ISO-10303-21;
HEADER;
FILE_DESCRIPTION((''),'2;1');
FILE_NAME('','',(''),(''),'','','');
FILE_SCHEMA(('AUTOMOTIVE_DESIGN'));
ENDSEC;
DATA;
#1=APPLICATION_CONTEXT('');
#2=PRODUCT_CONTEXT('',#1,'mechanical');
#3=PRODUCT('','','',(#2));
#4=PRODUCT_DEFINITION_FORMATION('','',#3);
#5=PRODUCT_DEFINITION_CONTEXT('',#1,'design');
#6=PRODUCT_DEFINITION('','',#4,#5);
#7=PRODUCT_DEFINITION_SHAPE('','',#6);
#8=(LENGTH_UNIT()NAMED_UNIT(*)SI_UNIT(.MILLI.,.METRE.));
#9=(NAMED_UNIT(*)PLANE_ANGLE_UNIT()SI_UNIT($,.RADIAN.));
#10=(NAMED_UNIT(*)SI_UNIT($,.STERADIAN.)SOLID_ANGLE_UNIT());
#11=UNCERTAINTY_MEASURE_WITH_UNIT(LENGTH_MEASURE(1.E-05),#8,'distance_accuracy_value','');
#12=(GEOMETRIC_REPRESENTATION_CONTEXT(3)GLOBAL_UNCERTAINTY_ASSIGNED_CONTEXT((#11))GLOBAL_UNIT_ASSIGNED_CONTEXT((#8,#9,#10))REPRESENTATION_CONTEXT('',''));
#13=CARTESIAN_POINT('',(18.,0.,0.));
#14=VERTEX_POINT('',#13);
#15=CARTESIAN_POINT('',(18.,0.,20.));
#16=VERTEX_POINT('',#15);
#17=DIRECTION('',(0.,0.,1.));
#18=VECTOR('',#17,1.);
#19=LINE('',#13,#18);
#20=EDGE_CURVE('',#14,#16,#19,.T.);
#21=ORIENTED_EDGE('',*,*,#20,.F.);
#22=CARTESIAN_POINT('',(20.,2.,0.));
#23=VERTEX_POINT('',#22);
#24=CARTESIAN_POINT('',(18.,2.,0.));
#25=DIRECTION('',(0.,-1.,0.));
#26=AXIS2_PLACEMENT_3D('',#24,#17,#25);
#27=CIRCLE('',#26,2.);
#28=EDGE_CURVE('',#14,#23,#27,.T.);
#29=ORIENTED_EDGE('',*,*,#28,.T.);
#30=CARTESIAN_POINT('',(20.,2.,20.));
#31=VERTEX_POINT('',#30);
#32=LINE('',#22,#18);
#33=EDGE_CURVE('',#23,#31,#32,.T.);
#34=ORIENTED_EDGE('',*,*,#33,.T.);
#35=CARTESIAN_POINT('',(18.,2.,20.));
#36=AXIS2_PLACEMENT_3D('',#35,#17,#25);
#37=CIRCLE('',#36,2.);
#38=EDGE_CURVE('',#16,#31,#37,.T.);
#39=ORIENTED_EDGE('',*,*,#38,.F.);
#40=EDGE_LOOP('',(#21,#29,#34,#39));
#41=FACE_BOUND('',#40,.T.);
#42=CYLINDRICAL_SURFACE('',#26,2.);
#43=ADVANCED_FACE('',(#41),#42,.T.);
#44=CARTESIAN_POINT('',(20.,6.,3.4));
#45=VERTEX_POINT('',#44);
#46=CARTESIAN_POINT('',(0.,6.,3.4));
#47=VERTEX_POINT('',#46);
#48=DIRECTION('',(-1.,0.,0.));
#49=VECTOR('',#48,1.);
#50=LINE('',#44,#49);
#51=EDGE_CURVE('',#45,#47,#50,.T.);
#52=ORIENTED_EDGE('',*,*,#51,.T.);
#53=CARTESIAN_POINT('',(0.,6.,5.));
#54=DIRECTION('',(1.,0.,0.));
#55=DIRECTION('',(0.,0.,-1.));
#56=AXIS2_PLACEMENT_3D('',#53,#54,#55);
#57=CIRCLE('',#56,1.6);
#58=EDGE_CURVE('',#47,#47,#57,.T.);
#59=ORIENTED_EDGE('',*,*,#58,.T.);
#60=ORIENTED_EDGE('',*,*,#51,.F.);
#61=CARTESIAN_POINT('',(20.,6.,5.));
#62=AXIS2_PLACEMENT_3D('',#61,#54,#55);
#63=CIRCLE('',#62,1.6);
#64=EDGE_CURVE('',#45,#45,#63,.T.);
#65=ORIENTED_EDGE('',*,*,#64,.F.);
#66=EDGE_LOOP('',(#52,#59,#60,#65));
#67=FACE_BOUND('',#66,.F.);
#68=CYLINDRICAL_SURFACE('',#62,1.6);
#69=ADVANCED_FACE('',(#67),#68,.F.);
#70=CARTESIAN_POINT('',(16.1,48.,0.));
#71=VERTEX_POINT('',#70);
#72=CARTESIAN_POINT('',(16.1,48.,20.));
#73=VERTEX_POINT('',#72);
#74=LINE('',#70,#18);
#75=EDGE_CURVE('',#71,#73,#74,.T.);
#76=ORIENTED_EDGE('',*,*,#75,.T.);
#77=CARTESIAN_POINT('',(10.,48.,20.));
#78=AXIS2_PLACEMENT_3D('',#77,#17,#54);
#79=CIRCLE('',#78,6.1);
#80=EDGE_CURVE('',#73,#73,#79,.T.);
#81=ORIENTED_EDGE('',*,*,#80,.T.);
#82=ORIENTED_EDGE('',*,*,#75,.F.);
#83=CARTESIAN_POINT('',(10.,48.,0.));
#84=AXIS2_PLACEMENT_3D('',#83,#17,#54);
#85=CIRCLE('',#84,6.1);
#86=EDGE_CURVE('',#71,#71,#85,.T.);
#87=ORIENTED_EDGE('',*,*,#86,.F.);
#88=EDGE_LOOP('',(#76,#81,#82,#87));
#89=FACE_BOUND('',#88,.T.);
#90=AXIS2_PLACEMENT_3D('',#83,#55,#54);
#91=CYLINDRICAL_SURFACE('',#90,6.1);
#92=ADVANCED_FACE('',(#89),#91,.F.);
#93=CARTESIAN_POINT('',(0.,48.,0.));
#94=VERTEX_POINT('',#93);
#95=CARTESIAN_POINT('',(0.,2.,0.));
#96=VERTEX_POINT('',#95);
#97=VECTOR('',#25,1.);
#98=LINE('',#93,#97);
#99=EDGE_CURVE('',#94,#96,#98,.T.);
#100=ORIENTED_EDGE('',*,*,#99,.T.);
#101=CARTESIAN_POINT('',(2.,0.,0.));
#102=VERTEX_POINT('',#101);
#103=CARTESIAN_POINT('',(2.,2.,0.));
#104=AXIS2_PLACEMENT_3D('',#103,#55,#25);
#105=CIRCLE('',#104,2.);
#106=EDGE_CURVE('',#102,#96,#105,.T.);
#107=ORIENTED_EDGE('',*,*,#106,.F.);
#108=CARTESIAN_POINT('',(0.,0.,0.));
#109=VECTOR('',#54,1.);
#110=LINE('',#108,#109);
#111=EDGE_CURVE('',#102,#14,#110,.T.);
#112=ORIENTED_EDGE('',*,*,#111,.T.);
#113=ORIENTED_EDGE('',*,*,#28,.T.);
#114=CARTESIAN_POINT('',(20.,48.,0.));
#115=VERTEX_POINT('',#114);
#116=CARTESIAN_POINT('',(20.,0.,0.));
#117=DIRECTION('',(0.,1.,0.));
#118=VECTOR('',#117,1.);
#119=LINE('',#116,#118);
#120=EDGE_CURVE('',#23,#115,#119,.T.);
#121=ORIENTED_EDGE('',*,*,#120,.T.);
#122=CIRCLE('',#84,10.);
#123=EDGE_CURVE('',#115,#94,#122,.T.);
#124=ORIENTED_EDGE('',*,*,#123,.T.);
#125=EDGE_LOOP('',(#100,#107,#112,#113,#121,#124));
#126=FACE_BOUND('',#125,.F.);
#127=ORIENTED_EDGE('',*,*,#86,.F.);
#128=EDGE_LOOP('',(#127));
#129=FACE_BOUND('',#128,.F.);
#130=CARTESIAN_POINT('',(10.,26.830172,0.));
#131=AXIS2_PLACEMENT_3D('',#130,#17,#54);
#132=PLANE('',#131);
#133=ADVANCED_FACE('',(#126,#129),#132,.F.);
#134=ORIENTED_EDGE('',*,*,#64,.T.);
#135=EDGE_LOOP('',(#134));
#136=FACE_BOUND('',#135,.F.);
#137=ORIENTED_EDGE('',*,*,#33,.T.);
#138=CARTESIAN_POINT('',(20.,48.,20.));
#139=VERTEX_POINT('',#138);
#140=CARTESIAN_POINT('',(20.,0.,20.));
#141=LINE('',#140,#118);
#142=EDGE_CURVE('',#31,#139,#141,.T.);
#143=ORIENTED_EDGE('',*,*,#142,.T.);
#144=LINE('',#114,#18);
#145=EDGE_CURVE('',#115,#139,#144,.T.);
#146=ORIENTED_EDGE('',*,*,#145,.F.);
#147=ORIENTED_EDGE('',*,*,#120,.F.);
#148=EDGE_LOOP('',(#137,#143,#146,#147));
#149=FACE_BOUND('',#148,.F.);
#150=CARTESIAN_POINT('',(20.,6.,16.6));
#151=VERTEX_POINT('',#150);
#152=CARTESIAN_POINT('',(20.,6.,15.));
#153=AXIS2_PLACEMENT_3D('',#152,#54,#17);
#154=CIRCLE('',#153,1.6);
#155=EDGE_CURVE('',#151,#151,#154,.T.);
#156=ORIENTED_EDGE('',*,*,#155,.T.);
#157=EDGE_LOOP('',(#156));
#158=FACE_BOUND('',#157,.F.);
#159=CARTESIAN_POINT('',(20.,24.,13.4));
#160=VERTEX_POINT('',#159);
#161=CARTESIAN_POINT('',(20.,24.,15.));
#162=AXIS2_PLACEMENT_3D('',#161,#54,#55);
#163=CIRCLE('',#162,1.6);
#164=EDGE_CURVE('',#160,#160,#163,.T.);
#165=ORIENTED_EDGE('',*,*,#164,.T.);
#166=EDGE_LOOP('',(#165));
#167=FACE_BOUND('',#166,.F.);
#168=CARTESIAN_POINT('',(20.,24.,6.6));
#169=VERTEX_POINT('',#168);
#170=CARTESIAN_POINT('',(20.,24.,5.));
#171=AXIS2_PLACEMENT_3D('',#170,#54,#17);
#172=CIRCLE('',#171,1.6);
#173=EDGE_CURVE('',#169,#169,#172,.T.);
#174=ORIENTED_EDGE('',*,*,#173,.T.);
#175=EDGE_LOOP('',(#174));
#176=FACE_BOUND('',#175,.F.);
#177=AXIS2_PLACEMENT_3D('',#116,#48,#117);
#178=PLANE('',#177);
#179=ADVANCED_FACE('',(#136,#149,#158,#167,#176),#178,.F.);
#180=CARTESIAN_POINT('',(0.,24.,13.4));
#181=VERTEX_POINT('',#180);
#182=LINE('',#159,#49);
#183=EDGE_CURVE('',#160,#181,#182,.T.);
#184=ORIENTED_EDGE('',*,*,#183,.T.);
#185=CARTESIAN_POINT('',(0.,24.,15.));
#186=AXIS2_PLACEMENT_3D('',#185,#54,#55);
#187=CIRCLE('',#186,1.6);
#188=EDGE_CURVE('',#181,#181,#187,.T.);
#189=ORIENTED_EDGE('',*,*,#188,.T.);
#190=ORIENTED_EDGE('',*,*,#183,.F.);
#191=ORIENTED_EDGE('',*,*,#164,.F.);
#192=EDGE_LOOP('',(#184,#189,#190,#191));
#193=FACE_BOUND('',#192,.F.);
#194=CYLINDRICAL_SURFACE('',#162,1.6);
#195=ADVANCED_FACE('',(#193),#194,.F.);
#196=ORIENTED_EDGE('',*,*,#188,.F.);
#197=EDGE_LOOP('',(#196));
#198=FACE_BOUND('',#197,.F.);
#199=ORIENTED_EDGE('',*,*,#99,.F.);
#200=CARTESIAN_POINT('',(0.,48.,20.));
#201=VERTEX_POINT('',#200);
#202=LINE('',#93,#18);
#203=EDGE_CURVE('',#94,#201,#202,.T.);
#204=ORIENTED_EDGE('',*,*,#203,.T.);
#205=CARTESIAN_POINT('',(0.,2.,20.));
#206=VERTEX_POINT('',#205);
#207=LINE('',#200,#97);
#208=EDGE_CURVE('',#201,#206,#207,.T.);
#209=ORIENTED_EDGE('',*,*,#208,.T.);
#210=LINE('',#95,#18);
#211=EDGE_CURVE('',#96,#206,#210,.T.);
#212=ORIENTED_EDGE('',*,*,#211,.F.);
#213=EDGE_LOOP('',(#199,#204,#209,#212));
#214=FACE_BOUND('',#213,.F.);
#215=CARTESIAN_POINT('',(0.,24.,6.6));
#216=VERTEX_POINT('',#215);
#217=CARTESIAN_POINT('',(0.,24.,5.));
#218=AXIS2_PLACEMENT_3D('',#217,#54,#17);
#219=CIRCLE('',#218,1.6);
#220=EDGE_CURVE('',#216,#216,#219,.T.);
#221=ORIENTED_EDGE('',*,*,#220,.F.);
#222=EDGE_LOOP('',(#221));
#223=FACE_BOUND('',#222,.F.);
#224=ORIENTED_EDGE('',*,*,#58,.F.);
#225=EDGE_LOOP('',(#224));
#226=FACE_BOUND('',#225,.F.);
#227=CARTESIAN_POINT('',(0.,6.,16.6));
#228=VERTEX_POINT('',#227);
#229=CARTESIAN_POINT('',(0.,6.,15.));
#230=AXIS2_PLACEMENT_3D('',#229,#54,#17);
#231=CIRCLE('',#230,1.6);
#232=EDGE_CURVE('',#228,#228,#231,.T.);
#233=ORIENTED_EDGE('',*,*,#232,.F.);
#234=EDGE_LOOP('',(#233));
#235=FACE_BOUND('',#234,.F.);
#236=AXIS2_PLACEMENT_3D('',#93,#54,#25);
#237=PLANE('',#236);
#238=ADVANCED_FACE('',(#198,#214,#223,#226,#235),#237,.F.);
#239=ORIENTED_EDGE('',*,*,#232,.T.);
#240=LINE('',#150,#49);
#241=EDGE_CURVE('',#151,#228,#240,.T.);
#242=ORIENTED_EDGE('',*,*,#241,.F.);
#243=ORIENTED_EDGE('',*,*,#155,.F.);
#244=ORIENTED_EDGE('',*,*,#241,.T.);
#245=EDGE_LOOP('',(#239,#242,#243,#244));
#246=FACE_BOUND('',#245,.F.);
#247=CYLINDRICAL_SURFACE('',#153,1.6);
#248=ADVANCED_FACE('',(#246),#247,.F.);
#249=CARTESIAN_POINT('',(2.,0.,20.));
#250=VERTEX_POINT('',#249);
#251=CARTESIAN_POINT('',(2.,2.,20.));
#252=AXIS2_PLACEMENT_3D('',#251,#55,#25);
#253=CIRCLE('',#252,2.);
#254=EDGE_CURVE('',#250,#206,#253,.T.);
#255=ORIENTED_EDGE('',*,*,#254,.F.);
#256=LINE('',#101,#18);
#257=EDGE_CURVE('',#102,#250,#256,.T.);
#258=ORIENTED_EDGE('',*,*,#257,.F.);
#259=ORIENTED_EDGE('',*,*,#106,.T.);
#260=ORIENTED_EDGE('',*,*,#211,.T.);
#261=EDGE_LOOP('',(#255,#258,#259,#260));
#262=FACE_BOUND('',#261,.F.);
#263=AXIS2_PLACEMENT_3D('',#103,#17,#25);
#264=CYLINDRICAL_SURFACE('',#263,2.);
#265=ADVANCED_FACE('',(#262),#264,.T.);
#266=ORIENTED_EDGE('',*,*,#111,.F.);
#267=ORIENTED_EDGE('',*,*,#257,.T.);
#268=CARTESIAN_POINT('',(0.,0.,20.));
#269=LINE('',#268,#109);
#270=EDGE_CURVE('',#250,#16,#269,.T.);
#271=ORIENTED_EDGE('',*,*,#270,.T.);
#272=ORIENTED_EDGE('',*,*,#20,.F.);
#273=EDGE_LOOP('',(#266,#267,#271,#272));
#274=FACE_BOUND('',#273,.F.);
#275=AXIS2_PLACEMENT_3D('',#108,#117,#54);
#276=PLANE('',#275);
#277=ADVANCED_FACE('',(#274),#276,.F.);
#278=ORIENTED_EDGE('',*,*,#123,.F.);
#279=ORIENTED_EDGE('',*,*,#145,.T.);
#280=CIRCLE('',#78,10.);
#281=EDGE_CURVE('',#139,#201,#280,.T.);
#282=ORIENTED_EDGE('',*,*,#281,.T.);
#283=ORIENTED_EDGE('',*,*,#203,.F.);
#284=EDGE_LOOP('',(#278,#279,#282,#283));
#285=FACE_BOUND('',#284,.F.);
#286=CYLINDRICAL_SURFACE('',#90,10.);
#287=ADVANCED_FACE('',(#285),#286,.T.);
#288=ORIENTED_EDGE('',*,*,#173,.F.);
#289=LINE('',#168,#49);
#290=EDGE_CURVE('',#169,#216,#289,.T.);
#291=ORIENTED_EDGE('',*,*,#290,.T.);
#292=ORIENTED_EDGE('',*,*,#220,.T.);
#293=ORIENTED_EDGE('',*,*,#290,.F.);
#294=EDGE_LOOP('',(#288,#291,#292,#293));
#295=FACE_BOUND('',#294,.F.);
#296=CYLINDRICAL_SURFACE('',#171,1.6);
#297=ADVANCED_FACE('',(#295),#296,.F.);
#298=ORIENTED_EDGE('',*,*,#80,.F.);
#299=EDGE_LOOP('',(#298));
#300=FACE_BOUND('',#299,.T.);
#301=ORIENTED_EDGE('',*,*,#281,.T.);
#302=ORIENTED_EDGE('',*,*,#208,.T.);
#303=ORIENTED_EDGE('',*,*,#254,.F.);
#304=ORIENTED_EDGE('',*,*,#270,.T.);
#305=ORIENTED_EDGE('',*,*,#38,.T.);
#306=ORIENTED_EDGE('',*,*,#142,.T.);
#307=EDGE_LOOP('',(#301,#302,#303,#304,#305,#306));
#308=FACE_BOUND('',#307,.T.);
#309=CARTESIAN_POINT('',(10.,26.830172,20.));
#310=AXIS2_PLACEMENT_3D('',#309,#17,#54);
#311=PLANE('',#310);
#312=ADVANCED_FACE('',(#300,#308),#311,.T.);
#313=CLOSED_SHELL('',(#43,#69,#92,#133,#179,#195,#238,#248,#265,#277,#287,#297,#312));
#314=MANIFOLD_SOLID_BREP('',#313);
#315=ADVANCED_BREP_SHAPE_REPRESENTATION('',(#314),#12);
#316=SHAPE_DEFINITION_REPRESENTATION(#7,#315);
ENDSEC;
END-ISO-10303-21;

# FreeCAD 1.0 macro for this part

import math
import FreeCAD as App
import Part
import Sketcher
from FreeCAD import Vector


def edges_at(feature, points):
    """Names of the edges that pass closest to the given points."""
    edges = feature.Shape.Edges
    near = lambda p: min(range(len(edges)), key=lambda i: edges[i].distToShape(Part.Vertex(*p))[0])
    return sorted({f"Edge{near(p) + 1}" for p in points})

doc = App.newDocument("Part")
body = doc.addObject("PartDesign::Body", "Body")

# Sketch on XY plane
sketch1 = body.newObject("Sketcher::SketchObject", "Sketch")
sketch1.AttachmentSupport = (doc.getObject("XY_Plane"), [""])
sketch1.MapMode = "FlatFace"
sketch1.addGeometry(Part.LineSegment(Vector(0, 0, 0), Vector(20, 0, 0)), False)
sketch1.addGeometry(Part.LineSegment(Vector(20, 0, 0), Vector(20, 48, 0)), False)
sketch1.addGeometry(Part.ArcOfCircle(Part.Circle(Vector(10, 48, 0), Vector(0, 0, 1), 10), math.radians(0), math.radians(180)), False)
sketch1.addGeometry(Part.LineSegment(Vector(0, 48, 0), Vector(0, 0, 0)), False)
sketch1.addGeometry(Part.Circle(Vector(10, 48, 0), Vector(0, 0, 1), 6.1), False)
sketch1.addConstraint(Sketcher.Constraint("Coincident", 0, 2, 1, 1))
sketch1.addConstraint(Sketcher.Constraint("Tangent", 1, 2, 2, 1))
sketch1.addConstraint(Sketcher.Constraint("Tangent", 2, 2, 3, 1))
sketch1.addConstraint(Sketcher.Constraint("Coincident", 3, 2, 0, 1))
sketch1.addConstraint(Sketcher.Constraint("Horizontal", 0))
sketch1.addConstraint(Sketcher.Constraint("Vertical", 1))
sketch1.addConstraint(Sketcher.Constraint("Vertical", 3))
sketch1.addConstraint(Sketcher.Constraint("Coincident", 3, 2, -1, 1))
sketch1.addConstraint(Sketcher.Constraint("Coincident", 4, 3, 2, 3))
sketch1.addConstraint(Sketcher.Constraint("Radius", 2, 10.0))
sketch1.addConstraint(Sketcher.Constraint("Diameter", 4, 12.2))
sketch1.addConstraint(Sketcher.Constraint("DistanceY", 1, 1, 1, 2, 48.0))
pad1 = body.newObject("PartDesign::Pad", "Pad")
pad1.Profile = sketch1
pad1.Length = 20

# Sketch on YZ plane
sketch2 = body.newObject("Sketcher::SketchObject", "Sketch001")
sketch2.AttachmentSupport = (doc.getObject("YZ_Plane"), [""])
sketch2.MapMode = "FlatFace"
sketch2.AttachmentOffset = App.Placement(Vector(0, 0, 20), App.Rotation())
sketch2.addGeometry(Part.Circle(Vector(24, 15, 0), Vector(0, 0, 1), 1.6), False)
sketch2.addGeometry(Part.Circle(Vector(6, 15, 0), Vector(0, 0, 1), 1.6), False)
sketch2.addGeometry(Part.Circle(Vector(6, 5, 0), Vector(0, 0, 1), 1.6), False)
sketch2.addGeometry(Part.Circle(Vector(24, 5, 0), Vector(0, 0, 1), 1.6), False)
sketch2.addConstraint(Sketcher.Constraint("Equal", 0, 1))
sketch2.addConstraint(Sketcher.Constraint("Equal", 1, 2))
sketch2.addConstraint(Sketcher.Constraint("Equal", 2, 3))
sketch2.addConstraint(Sketcher.Constraint("Horizontal", 0, 3, 1, 3))
sketch2.addConstraint(Sketcher.Constraint("Horizontal", 2, 3, 3, 3))
sketch2.addConstraint(Sketcher.Constraint("Vertical", 1, 3, 2, 3))
sketch2.addConstraint(Sketcher.Constraint("Vertical", 0, 3, 3, 3))
sketch2.addConstraint(Sketcher.Constraint("Diameter", 0, 3.2))
sketch2.addConstraint(Sketcher.Constraint("DistanceX", -1, 1, 0, 3, 24.0))
sketch2.addConstraint(Sketcher.Constraint("DistanceY", -1, 1, 0, 3, 15.0))
sketch2.addConstraint(Sketcher.Constraint("DistanceX", -1, 1, 1, 3, 6.0))
sketch2.addConstraint(Sketcher.Constraint("DistanceY", -1, 1, 2, 3, 5.0))
pocket1 = body.newObject("PartDesign::Pocket", "Pocket")
pocket1.Profile = sketch2
pocket1.Type = "ThroughAll"
doc.recompute()

fillet = body.newObject("PartDesign::Fillet", "Fillet")
fillet.Base = (pocket1, edges_at(pocket1, [(20, 0, 10), (0, 0, 10)]))
fillet.Radius = 2

doc.recompute()
